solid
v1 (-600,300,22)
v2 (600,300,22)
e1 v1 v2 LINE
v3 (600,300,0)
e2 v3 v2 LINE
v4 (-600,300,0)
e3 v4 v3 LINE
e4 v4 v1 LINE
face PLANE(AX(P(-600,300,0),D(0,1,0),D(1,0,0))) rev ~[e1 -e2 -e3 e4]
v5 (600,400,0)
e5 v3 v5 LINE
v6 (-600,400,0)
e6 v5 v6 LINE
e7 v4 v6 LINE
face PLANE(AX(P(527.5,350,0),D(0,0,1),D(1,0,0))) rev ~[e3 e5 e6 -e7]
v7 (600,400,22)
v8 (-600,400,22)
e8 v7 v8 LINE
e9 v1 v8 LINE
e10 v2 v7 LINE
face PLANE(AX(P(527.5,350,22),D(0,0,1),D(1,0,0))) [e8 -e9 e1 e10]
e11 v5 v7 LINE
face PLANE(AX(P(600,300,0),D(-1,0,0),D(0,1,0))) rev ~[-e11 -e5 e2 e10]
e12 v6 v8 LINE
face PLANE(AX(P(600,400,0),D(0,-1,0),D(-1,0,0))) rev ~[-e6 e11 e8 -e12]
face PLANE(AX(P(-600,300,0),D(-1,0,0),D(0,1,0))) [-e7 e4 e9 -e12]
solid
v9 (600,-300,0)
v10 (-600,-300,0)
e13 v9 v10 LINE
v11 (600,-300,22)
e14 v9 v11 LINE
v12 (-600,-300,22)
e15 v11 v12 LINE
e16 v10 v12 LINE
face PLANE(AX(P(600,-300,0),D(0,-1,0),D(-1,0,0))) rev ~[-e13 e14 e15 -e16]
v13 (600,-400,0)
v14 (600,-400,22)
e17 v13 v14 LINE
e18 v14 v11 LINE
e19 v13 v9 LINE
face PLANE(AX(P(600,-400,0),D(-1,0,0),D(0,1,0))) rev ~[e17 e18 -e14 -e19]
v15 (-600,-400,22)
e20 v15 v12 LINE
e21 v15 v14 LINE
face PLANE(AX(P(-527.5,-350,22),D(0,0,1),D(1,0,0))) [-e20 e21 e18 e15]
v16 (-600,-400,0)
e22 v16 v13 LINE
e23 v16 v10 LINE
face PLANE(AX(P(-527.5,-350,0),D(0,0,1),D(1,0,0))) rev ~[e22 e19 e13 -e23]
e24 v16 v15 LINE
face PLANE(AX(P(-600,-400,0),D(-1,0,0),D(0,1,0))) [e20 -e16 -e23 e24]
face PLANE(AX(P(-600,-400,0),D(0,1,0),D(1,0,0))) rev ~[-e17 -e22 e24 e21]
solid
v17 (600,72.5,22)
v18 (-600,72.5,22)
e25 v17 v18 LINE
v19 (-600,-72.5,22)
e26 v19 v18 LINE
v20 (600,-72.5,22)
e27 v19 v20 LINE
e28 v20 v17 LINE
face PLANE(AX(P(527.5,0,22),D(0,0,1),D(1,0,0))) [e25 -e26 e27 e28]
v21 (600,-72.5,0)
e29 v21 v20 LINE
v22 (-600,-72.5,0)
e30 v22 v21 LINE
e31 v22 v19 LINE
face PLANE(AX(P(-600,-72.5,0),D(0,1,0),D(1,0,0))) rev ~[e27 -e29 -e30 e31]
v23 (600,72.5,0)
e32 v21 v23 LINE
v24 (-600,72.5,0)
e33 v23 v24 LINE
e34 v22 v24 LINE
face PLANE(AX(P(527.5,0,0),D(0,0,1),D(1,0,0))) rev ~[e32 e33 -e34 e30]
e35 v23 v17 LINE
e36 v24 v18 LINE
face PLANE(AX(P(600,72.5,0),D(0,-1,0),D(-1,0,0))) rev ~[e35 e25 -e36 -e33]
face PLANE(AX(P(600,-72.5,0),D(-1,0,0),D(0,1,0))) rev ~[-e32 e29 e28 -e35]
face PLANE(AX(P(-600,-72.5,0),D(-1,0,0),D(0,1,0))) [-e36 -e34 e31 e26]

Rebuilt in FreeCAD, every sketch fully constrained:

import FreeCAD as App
import Part
import Sketcher
from FreeCAD import Vector

doc = App.newDocument("Part")
body = doc.addObject("PartDesign::Body", "Body")

sketch1 = body.newObject("Sketcher::SketchObject", "Sketch")
sketch1.AttachmentSupport = (doc.getObject("XY_Plane"), [""])
sketch1.MapMode = "FlatFace"
sketch1.addGeometry([
    Part.LineSegment(Vector(600, 300, 0), Vector(600, 400, 0)),
    Part.LineSegment(Vector(600, 400, 0), Vector(-600, 400, 0)),
    Part.LineSegment(Vector(-600, 400, 0), Vector(-600, 300, 0)),
    Part.LineSegment(Vector(-600, 300, 0), Vector(600, 300, 0)),
], False)
sketch1.addConstraint([
    Sketcher.Constraint("Coincident", 0, 2, 1, 1),
    Sketcher.Constraint("Coincident", 1, 2, 2, 1),
    Sketcher.Constraint("Coincident", 2, 2, 3, 1),
    Sketcher.Constraint("Coincident", 3, 2, 0, 1),
    Sketcher.Constraint("Vertical", 0),
    Sketcher.Constraint("Horizontal", 1),
    Sketcher.Constraint("Vertical", 2),
    Sketcher.Constraint("Horizontal", 3),
    Sketcher.Constraint("DistanceX", 1, 2, 1, 1, 1200.0),
    Sketcher.Constraint("DistanceY", 0, 1, 0, 2, 100.0),
    Sketcher.Constraint("DistanceX", -1, 1, 0, 2, 600.0),
    Sketcher.Constraint("DistanceY", -1, 1, 0, 2, 400.0),
])
pad1 = body.newObject("PartDesign::Pad", "Pad")
pad1.Profile = sketch1
pad1.Length = 22
body2 = doc.addObject("PartDesign::Body", "Body001")

sketch2 = body2.newObject("Sketcher::SketchObject", "Sketch001")
sketch2.AttachmentSupport = (doc.getObject("XY_Plane001"), [""])
sketch2.MapMode = "FlatFace"
sketch2.addGeometry([
    Part.LineSegment(Vector(-600, 260, 0), Vector(-600, 160, 0)),
    Part.LineSegment(Vector(-600, 160, 0), Vector(600, 160, 0)),
    Part.LineSegment(Vector(600, 160, 0), Vector(600, 260, 0)),
    Part.LineSegment(Vector(600, 260, 0), Vector(-600, 260, 0)),
], False)
sketch2.addConstraint([
    Sketcher.Constraint("Coincident", 0, 2, 1, 1),
    Sketcher.Constraint("Coincident", 1, 2, 2, 1),
    Sketcher.Constraint("Coincident", 2, 2, 3, 1),
    Sketcher.Constraint("Coincident", 3, 2, 0, 1),
    Sketcher.Constraint("Vertical", 0),
    Sketcher.Constraint("Horizontal", 1),
    Sketcher.Constraint("Vertical", 2),
    Sketcher.Constraint("Horizontal", 3),
    Sketcher.Constraint("DistanceX", 1, 1, 1, 2, 1200.0),
    Sketcher.Constraint("DistanceY", 0, 2, 0, 1, 100.0),
    Sketcher.Constraint("DistanceX", 0, 2, -1, 1, 600.0),
    Sketcher.Constraint("DistanceY", -1, 1, 0, 2, 160.0),
])
pad2 = body2.newObject("PartDesign::Pad", "Pad001")
pad2.Profile = sketch2
pad2.Length = 22
body3 = doc.addObject("PartDesign::Body", "Body002")

sketch3 = body3.newObject("Sketcher::SketchObject", "Sketch002")
sketch3.AttachmentSupport = (doc.getObject("XY_Plane002"), [""])
sketch3.MapMode = "FlatFace"
sketch3.addGeometry([
    Part.LineSegment(Vector(600, -72, 0), Vector(600, 72, 0)),
    Part.LineSegment(Vector(600, 72, 0), Vector(-600, 72, 0)),
    Part.LineSegment(Vector(-600, 72, 0), Vector(-600, -72, 0)),
    Part.LineSegment(Vector(-600, -72, 0), Vector(600, -72, 0)),
], False)
sketch3.addConstraint([
    Sketcher.Constraint("Coincident", 0, 2, 1, 1),
    Sketcher.Constraint("Coincident", 1, 2, 2, 1),
    Sketcher.Constraint("Coincident", 2, 2, 3, 1),
    Sketcher.Constraint("Coincident", 3, 2, 0, 1),
    Sketcher.Constraint("Vertical", 0),
    Sketcher.Constraint("Horizontal", 1),
    Sketcher.Constraint("Vertical", 2),
    Sketcher.Constraint("Horizontal", 3),
    Sketcher.Constraint("Symmetric", 0, 2, 2, 2, -1, 1),
    Sketcher.Constraint("DistanceX", 1, 2, 1, 1, 1200.0),
    Sketcher.Constraint("DistanceY", 0, 1, 0, 2, 145.0),
])
pad3 = body3.newObject("PartDesign::Pad", "Pad002")
pad3.Profile = sketch3
pad3.Length = 22
body4 = doc.addObject("PartDesign::Body", "Body003")

sketch4 = body4.newObject("Sketcher::SketchObject", "Sketch003")
sketch4.AttachmentSupport = (doc.getObject("XY_Plane003"), [""])
sketch4.MapMode = "FlatFace"
sketch4.addGeometry([
    Part.LineSegment(Vector(-600, -160, 0), Vector(-600, -260, 0)),
    Part.LineSegment(Vector(-600, -260, 0), Vector(600, -260, 0)),
    Part.LineSegment(Vector(600, -260, 0), Vector(600, -160, 0)),
    Part.LineSegment(Vector(600, -160, 0), Vector(-600, -160, 0)),
], False)
sketch4.addConstraint([
    Sketcher.Constraint("Coincident", 0, 2, 1, 1),
    Sketcher.Constraint("Coincident", 1, 2, 2, 1),
    Sketcher.Constraint("Coincident", 2, 2, 3, 1),
    Sketcher.Constraint("Coincident", 3, 2, 0, 1),
    Sketcher.Constraint("Vertical", 0),
    Sketcher.Constraint("Horizontal", 1),
    Sketcher.Constraint("Vertical", 2),
    Sketcher.Constraint("Horizontal", 3),
    Sketcher.Constraint("DistanceX", 1, 1, 1, 2, 1200.0),
    Sketcher.Constraint("DistanceY", 0, 2, 0, 1, 100.0),
    Sketcher.Constraint("DistanceX", 0, 2, -1, 1, 600.0),
    Sketcher.Constraint("DistanceY", 0, 2, -1, 1, 260.0),
])
pad4 = body4.newObject("PartDesign::Pad", "Pad003")
pad4.Profile = sketch4
pad4.Length = 22
body5 = doc.addObject("PartDesign::Body", "Body004")

sketch5 = body5.newObject("Sketcher::SketchObject", "Sketch004")
sketch5.AttachmentSupport = (doc.getObject("XY_Plane004"), [""])
sketch5.MapMode = "FlatFace"
sketch5.addGeometry([
    Part.LineSegment(Vector(600, -400, 0), Vector(600, -300, 0)),
    Part.LineSegment(Vector(600, -300, 0), Vector(-600, -300, 0)),
    Part.LineSegment(Vector(-600, -300, 0), Vector(-600, -400, 0)),
    Part.LineSegment(Vector(-600, -400, 0), Vector(600, -400, 0)),
], False)
sketch5.addConstraint([
    Sketcher.Constraint("Coincident", 0, 2, 1, 1),
    Sketcher.Constraint("Coincident", 1, 2, 2, 1),
    Sketcher.Constraint("Coincident", 2, 2, 3, 1),
    Sketcher.Constraint("Coincident", 3, 2, 0, 1),
    Sketcher.Constraint("Vertical", 0),
    Sketcher.Constraint("Horizontal", 1),
    Sketcher.Constraint("Vertical", 2),
    Sketcher.Constraint("Horizontal", 3),
    Sketcher.Constraint("DistanceX", 1, 2, 1, 1, 1200.0),
    Sketcher.Constraint("DistanceY", 0, 1, 0, 2, 100.0),
    Sketcher.Constraint("DistanceX", -1, 1, 0, 2, 600.0),
    Sketcher.Constraint("DistanceY", 0, 2, -1, 1, 300.0),
])
pad5 = body5.newObject("PartDesign::Pad", "Pad004")
pad5.Profile = sketch5
pad5.Length = 22
body6 = doc.addObject("PartDesign::Body", "Body005")

sketch6 = body6.newObject("Sketcher::SketchObject", "Sketch005")
sketch6.AttachmentSupport = (doc.getObject("XY_Plane005"), [""])
sketch6.MapMode = "FlatFace"
sketch6.addGeometry([
    Part.LineSegment(Vector(600, 300, 0), Vector(600, 400, 0)),
    Part.LineSegment(Vector(600, 400, 0), Vector(-600, 400, 0)),
    Part.LineSegment(Vector(-600, 400, 0), Vector(-600, 300, 0)),
    Part.LineSegment(Vector(-600, 300, 0), Vector(600, 300, 0)),
], False)
sketch6.addConstraint([
    Sketcher.Constraint("Coincident", 0, 2, 1, 1),
    Sketcher.Constraint("Coincident", 1, 2, 2, 1),
    Sketcher.Constraint("Coincident", 2, 2, 3, 1),
    Sketcher.Constraint("Coincident", 3, 2, 0, 1),
    Sketcher.Constraint("Vertical", 0),
    Sketcher.Constraint("Horizontal", 1),
    Sketcher.Constraint("Vertical", 2),
    Sketcher.Constraint("Horizontal", 3),
    Sketcher.Constraint("DistanceX", 1, 2, 1, 1, 1200.0),
    Sketcher.Constraint("DistanceY", 0, 1, 0, 2, 100.0),
    Sketcher.Constraint("DistanceX", -1, 1, 0, 2, 600.0),
    Sketcher.Constraint("DistanceY", -1, 1, 0, 2, 400.0),
])
pad6 = body6.newObject("PartDesign::Pad", "Pad005")
pad6.Profile = sketch6
pad6.Length = 22
body7 = doc.addObject("PartDesign::Body", "Body006")

sketch7 = body7.newObject("Sketcher::SketchObject", "Sketch006")
sketch7.AttachmentSupport = (doc.getObject("XY_Plane006"), [""])
sketch7.MapMode = "FlatFace"
sketch7.addGeometry([
    Part.LineSegment(Vector(-600, -300, 0), Vector(-600, -400, 0)),
    Part.LineSegment(Vector(-600, -400, 0), Vector(600, -400, 0)),
    Part.LineSegment(Vector(600, -400, 0), Vector(600, -300, 0)),
    Part.LineSegment(Vector(600, -300, 0), Vector(-600, -300, 0)),
], False)
sketch7.addConstraint([
    Sketcher.Constraint("Coincident", 0, 2, 1, 1),
    Sketcher.Constraint("Coincident", 1, 2, 2, 1),
    Sketcher.Constraint("Coincident", 2, 2, 3, 1),
    Sketcher.Constraint("Coincident", 3, 2, 0, 1),
    Sketcher.Constraint("Vertical", 0),
    Sketcher.Constraint("Horizontal", 1),
    Sketcher.Constraint("Vertical", 2),
    Sketcher.Constraint("Horizontal", 3),
    Sketcher.Constraint("DistanceX", 1, 1, 1, 2, 1200.0),
    Sketcher.Constraint("DistanceY", 0, 2, 0, 1, 100.0),
    Sketcher.Constraint("DistanceX", 0, 2, -1, 1, 600.0),
    Sketcher.Constraint("DistanceY", 0, 2, -1, 1, 400.0),
])
pad7 = body7.newObject("PartDesign::Pad", "Pad006")
pad7.Profile = sketch7
pad7.Length = 22
body.Visibility = False
body2.Visibility = False
body4.Visibility = False
body5.Visibility = False

doc.recompute()
